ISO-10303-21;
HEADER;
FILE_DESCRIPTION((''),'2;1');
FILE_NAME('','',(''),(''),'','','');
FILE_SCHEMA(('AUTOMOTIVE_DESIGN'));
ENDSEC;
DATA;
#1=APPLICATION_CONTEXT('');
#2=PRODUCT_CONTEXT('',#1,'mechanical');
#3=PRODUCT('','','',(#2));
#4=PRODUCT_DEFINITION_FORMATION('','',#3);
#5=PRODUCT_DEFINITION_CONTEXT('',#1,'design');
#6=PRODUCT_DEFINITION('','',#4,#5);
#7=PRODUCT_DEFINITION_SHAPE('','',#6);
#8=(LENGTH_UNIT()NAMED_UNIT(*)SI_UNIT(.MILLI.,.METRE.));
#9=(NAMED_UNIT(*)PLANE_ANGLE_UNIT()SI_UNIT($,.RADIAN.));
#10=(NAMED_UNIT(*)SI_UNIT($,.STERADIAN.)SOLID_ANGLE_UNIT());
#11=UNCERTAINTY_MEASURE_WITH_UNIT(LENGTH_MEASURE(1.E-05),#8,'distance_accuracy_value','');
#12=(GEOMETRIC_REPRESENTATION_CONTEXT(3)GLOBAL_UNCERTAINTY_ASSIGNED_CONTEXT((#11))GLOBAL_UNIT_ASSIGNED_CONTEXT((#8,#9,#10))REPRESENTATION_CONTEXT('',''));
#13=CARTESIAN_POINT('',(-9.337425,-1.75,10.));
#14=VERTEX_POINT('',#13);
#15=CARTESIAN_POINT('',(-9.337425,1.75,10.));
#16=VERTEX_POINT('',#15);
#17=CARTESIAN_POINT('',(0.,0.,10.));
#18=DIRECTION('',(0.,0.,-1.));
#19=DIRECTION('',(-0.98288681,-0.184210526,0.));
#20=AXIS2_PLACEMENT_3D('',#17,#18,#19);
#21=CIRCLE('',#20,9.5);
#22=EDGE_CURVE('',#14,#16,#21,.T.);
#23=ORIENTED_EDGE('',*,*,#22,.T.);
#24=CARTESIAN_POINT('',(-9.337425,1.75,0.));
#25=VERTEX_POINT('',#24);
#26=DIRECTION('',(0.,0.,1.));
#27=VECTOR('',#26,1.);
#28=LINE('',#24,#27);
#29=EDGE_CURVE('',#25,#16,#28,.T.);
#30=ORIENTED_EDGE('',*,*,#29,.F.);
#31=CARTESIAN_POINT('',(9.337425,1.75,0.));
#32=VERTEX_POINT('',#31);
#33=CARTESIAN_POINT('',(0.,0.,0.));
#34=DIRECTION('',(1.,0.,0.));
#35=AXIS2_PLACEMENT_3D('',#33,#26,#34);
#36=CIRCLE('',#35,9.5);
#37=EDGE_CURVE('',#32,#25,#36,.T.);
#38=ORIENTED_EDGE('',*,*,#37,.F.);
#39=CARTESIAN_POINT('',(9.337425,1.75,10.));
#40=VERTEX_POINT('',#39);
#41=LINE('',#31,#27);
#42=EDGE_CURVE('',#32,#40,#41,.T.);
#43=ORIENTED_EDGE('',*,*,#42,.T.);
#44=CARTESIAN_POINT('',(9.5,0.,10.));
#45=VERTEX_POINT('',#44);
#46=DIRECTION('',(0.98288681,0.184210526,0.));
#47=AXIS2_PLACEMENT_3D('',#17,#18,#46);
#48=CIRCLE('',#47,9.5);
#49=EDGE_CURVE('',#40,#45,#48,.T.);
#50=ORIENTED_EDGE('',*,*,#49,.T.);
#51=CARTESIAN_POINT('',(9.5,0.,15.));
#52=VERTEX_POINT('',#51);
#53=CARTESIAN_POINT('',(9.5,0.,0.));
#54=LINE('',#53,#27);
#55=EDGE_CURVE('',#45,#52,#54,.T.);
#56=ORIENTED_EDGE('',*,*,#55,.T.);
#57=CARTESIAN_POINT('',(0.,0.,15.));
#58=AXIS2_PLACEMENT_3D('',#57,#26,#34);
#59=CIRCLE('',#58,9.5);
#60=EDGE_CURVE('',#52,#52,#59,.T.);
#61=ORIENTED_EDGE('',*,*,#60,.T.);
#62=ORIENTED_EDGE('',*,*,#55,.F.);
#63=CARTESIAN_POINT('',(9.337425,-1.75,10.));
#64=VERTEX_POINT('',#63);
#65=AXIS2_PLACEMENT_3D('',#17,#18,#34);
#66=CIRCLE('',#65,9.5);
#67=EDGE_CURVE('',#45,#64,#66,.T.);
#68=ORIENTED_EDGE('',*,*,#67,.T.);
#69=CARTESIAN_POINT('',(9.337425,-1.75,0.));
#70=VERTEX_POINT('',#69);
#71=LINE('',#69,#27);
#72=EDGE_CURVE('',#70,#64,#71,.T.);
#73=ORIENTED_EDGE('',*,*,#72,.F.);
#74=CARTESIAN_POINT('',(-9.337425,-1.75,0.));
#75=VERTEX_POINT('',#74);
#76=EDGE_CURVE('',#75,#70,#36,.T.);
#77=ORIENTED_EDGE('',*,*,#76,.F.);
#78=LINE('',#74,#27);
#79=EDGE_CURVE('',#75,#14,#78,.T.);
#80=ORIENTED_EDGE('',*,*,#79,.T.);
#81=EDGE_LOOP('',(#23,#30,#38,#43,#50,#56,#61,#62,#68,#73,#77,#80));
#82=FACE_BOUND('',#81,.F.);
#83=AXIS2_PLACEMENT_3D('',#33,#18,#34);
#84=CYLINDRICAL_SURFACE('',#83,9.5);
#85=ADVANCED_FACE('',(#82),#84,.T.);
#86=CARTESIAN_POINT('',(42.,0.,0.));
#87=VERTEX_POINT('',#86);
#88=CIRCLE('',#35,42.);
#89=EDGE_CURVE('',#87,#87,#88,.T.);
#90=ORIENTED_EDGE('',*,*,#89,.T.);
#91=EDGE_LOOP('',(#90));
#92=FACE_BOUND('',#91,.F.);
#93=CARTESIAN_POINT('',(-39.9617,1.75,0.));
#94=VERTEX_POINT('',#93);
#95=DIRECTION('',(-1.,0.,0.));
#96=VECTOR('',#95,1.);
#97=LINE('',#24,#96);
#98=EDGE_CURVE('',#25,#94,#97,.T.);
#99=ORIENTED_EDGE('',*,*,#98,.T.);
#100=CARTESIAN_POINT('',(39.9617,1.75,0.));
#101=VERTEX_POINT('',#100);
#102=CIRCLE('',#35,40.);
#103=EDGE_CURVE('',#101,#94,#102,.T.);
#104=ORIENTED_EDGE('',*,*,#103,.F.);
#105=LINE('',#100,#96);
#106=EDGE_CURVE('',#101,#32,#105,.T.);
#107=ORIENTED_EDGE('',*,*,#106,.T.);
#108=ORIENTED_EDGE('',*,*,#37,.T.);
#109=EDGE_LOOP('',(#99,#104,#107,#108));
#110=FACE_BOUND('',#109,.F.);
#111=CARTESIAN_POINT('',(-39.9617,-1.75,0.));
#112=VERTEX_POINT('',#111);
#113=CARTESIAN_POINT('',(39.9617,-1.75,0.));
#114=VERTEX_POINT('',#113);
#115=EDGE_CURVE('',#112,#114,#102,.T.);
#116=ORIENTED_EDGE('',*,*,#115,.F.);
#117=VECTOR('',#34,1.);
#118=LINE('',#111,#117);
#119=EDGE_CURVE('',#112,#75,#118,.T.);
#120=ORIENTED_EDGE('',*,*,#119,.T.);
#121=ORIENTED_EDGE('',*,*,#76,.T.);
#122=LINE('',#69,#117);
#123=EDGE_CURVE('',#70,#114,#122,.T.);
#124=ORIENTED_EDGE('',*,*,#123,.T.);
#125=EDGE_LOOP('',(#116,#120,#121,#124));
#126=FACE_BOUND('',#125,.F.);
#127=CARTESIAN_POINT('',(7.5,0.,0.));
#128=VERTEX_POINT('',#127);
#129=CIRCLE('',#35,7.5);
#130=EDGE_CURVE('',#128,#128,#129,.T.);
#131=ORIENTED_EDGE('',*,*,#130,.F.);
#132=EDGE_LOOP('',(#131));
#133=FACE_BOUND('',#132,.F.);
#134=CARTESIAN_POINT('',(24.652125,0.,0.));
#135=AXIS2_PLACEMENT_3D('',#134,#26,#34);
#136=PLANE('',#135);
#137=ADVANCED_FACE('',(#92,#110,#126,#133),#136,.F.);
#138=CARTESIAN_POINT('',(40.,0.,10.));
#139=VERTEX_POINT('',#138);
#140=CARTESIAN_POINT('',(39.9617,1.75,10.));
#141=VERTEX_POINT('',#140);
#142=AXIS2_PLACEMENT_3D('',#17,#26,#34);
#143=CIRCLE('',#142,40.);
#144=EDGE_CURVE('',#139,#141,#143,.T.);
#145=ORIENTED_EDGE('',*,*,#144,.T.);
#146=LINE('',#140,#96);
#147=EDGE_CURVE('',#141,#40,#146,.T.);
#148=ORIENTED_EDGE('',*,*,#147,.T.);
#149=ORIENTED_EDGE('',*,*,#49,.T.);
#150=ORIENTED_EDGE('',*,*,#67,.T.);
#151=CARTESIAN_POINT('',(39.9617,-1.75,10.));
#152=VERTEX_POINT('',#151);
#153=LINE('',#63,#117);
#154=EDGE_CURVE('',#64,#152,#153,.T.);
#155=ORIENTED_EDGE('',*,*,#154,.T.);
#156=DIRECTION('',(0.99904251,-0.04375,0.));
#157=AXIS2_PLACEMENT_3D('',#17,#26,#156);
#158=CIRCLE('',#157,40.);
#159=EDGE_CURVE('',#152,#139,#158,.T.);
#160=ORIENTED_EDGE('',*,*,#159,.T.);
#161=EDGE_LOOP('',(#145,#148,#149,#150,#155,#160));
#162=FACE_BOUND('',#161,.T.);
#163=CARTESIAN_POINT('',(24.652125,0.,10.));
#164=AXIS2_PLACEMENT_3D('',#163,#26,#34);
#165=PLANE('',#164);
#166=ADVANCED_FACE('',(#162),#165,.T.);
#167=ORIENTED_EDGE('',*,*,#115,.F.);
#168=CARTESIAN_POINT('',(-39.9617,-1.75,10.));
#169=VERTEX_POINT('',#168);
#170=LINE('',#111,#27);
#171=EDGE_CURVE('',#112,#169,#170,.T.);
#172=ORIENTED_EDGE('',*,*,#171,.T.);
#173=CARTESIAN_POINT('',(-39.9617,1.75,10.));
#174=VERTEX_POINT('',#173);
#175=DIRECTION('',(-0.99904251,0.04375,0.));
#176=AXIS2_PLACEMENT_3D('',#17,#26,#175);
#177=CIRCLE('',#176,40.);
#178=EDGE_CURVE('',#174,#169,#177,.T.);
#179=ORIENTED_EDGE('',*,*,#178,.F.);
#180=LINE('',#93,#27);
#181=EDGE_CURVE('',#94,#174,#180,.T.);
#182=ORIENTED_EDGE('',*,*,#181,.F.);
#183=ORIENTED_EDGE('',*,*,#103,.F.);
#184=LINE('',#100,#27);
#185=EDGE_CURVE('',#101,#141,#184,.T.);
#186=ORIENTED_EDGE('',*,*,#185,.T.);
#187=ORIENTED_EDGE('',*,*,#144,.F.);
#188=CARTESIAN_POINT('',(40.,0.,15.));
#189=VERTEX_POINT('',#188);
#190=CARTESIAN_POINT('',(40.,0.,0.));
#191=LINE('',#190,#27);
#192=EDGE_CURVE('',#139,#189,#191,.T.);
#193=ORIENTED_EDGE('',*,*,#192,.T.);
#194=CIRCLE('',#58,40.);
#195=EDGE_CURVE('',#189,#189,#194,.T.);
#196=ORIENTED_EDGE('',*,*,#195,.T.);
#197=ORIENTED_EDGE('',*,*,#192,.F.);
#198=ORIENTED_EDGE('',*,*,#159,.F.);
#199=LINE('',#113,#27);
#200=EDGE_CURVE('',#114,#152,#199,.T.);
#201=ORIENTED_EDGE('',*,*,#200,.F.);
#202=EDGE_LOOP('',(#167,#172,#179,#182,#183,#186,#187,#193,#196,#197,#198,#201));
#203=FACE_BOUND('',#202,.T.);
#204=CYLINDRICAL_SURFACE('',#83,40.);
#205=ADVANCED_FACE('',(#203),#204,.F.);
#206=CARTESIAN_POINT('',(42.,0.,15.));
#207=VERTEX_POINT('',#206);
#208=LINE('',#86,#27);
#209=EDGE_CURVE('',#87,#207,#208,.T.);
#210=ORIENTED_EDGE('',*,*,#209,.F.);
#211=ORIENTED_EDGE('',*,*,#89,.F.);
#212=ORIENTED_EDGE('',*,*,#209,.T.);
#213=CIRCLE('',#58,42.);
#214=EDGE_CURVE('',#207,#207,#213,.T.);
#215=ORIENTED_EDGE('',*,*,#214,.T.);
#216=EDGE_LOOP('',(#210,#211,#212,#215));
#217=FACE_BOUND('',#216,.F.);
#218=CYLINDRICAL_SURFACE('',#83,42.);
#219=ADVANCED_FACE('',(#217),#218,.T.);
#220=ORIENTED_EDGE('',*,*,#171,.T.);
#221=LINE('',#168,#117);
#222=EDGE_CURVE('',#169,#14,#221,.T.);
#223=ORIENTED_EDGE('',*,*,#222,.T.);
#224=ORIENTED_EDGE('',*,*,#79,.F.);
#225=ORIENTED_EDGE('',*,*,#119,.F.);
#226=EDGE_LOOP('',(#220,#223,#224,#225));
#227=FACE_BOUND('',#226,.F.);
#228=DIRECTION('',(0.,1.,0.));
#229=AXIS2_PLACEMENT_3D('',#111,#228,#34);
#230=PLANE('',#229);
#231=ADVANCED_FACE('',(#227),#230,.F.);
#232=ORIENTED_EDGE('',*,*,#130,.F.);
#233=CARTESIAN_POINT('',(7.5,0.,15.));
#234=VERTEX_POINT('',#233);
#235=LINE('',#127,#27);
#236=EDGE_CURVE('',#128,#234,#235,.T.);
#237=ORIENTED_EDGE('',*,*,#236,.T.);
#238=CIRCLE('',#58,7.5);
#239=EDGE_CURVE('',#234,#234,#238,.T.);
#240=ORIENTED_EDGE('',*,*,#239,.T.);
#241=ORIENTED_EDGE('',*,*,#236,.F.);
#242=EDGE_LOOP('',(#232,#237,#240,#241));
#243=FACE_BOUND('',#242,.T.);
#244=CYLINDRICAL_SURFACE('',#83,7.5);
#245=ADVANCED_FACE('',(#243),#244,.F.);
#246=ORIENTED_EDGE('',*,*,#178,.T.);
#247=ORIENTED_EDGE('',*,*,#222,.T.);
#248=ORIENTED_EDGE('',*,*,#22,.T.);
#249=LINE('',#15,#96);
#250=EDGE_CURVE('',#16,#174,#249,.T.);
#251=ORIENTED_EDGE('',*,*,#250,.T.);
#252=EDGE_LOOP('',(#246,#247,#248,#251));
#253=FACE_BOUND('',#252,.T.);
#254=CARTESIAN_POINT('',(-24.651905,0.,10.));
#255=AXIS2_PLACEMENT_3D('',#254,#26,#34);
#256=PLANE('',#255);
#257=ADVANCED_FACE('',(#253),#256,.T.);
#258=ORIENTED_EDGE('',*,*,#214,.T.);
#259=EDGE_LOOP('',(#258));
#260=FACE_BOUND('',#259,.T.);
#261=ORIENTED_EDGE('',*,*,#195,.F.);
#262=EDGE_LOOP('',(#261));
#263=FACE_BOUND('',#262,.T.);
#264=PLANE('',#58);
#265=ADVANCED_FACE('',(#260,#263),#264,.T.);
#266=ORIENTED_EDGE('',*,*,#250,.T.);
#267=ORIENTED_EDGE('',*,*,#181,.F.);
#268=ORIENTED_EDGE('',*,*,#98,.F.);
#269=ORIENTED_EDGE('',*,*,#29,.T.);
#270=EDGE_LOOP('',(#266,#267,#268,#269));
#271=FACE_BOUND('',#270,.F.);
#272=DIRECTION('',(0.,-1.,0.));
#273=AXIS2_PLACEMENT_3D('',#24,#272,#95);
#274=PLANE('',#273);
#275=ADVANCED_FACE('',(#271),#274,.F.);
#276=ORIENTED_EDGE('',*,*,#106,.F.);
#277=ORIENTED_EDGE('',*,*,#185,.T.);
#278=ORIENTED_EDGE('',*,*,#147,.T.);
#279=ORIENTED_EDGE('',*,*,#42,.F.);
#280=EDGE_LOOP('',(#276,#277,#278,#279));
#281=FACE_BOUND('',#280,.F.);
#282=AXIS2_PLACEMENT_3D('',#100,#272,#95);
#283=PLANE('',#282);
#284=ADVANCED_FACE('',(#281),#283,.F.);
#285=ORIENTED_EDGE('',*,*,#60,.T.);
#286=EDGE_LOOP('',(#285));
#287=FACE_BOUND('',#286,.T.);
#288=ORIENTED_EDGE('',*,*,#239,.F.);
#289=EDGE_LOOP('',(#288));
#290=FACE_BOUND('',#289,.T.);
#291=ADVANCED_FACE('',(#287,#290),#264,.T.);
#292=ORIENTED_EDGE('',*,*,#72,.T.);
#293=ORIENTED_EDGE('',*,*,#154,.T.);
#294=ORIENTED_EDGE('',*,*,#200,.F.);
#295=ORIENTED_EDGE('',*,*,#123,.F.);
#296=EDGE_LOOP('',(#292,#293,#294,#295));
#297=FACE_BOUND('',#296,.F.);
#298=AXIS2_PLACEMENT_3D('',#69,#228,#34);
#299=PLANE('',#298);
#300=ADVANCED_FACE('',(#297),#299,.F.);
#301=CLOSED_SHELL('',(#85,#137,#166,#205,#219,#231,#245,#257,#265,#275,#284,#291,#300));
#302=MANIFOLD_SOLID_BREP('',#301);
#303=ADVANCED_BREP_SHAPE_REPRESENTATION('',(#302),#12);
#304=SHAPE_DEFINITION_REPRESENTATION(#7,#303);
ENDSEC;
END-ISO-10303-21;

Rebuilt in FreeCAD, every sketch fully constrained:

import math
import FreeCAD as App
import Part
import Sketcher

V = App.Vector

doc = App.newDocument("Part")
body = doc.addObject("PartDesign::Body", "Body")

sketch1 = body.newObject("Sketcher::SketchObject", "Sketch")
sketch1.AttachmentSupport = (doc.getObject("XY_Plane"), [""])
sketch1.MapMode = "FlatFace"
sketch1.addGeometry([
    Part.Circle(V(0, 0, 0), V(0, 0, 1), 42),
    Part.Circle(V(0, 0, 0), V(0, 0, 1), 40),
], False)
sketch1.addConstraint([
    Sketcher.Constraint("Coincident", 0, 3, -1, 1),
    Sketcher.Constraint("Coincident", 1, 3, -1, 1),
    Sketcher.Constraint("Diameter", 0, 84.0),
    Sketcher.Constraint("Diameter", 1, 80.0),
])
pad1 = body.newObject("PartDesign::Pad", "Pad")
pad1.Profile = sketch1
pad1.Length = 15
body2 = doc.addObject("PartDesign::Body", "Body001")

sketch2 = body2.newObject("Sketcher::SketchObject", "Sketch001")
sketch2.AttachmentSupport = (doc.getObject("XY_Plane001"), [""])
sketch2.MapMode = "FlatFace"
sketch2.addGeometry([
    Part.Circle(V(0, 0, 0), V(0, 0, 1), 9.5),
    Part.Circle(V(0, 0, 0), V(0, 0, 1), 7.5),
], False)
sketch2.addConstraint([
    Sketcher.Constraint("Coincident", 0, 3, -1, 1),
    Sketcher.Constraint("Coincident", 1, 3, -1, 1),
    Sketcher.Constraint("Diameter", 0, 19.0),
    Sketcher.Constraint("Diameter", 1, 15.0),
])
pad2 = body2.newObject("PartDesign::Pad", "Pad001")
pad2.Profile = sketch2
pad2.Length = 15
body.AllowCompound = True
doc.recompute()

boolean = body.newObject("PartDesign::Boolean", "Boolean")
boolean.Type = "Fuse"
boolean.addObjects([body2])

sketch3 = body.newObject("Sketcher::SketchObject", "Sketch002")
sketch3.AttachmentSupport = (doc.getObject("XY_Plane"), [""])
sketch3.MapMode = "FlatFace"
sketch3.addGeometry([
    Part.ArcOfCircle(Part.Circle(V(0, 0, 0), V(0, 0, 1), 40), math.radians(-2.507491), math.radians(0)),
    Part.ArcOfCircle(Part.Circle(V(0, 0, 0), V(0, 0, 1), 40), math.radians(0), math.radians(2.507491)),
    Part.LineSegment(V(39.9617, 1.75, 0), V(9.337425, 1.75, 0)),
    Part.ArcOfCircle(Part.Circle(V(0, 0, 0), V(0, 0, 1), 9.5), math.radians(0), math.radians(10.615108)),
    Part.ArcOfCircle(Part.Circle(V(0, 0, 0), V(0, 0, 1), 9.5), math.radians(-10.615108), math.radians(0)),
    Part.LineSegment(V(9.337425, -1.75, 0), V(39.9617, -1.75, 0)),
    Part.LineSegment(V(-9.337425, 1.75, 0), V(-39.9617, 1.75, 0)),
    Part.ArcOfCircle(Part.Circle(V(0, 0, 0), V(0, 0, 1), 40), math.radians(177.492509), math.radians(182.507491)),
    Part.LineSegment(V(-39.9617, -1.75, 0), V(-9.337425, -1.75, 0)),
    Part.ArcOfCircle(Part.Circle(V(0, 0, 0), V(0, 0, 1), 9.5), math.radians(169.384892), math.radians(190.615108)),
], False)
sketch3.addConstraint([
    Sketcher.Constraint("Tangent", 0, 2, 1, 1),
    Sketcher.Constraint("Coincident", 1, 2, 2, 1),
    Sketcher.Constraint("Coincident", 2, 2, 3, 2),
    Sketcher.Constraint("Tangent", 3, 1, 4, 2),
    Sketcher.Constraint("Coincident", 4, 1, 5, 1),
    Sketcher.Constraint("Coincident", 5, 2, 0, 1),
    Sketcher.Constraint("Coincident", 6, 2, 7, 1),
    Sketcher.Constraint("Coincident", 7, 2, 8, 1),
    Sketcher.Constraint("Coincident", 8, 2, 9, 2),
    Sketcher.Constraint("Coincident", 9, 1, 6, 1),
    Sketcher.Constraint("Horizontal", 2),
    Sketcher.Constraint("Horizontal", 5),
    Sketcher.Constraint("Horizontal", 6),
    Sketcher.Constraint("Horizontal", 8),
    Sketcher.Constraint("Coincident", 0, 3, -1, 1),
    Sketcher.Constraint("Coincident", 3, 3, -1, 1),
    Sketcher.Constraint("Coincident", 7, 3, -1, 1),
    Sketcher.Constraint("Coincident", 9, 3, -1, 1),
    Sketcher.Constraint("Equal", 0, 1),
    Sketcher.Constraint("Equal", 3, 4),
    Sketcher.Constraint("Equal", 1, 7),
    Sketcher.Constraint("Equal", 4, 9),
    Sketcher.Constraint("PointOnObject", 0, 2, -1),
    Sketcher.Constraint("PointOnObject", 3, 1, -1),
    Sketcher.Constraint("Horizontal", 2, 2, 6, 2),
    Sketcher.Constraint("Horizontal", 5, 2, 7, 2),
    Sketcher.Constraint("Vertical", 2, 2, 4, 1),
    Sketcher.Constraint("Radius", 0, 40.0),
    Sketcher.Constraint("Radius", 3, 9.5),
    Sketcher.Constraint("DistanceY", 4, 1, 2, 2, 3.5),
])
pad3 = body.newObject("PartDesign::Pad", "Pad002")
pad3.Profile = sketch3
pad3.Length = 10

doc.recompute()
